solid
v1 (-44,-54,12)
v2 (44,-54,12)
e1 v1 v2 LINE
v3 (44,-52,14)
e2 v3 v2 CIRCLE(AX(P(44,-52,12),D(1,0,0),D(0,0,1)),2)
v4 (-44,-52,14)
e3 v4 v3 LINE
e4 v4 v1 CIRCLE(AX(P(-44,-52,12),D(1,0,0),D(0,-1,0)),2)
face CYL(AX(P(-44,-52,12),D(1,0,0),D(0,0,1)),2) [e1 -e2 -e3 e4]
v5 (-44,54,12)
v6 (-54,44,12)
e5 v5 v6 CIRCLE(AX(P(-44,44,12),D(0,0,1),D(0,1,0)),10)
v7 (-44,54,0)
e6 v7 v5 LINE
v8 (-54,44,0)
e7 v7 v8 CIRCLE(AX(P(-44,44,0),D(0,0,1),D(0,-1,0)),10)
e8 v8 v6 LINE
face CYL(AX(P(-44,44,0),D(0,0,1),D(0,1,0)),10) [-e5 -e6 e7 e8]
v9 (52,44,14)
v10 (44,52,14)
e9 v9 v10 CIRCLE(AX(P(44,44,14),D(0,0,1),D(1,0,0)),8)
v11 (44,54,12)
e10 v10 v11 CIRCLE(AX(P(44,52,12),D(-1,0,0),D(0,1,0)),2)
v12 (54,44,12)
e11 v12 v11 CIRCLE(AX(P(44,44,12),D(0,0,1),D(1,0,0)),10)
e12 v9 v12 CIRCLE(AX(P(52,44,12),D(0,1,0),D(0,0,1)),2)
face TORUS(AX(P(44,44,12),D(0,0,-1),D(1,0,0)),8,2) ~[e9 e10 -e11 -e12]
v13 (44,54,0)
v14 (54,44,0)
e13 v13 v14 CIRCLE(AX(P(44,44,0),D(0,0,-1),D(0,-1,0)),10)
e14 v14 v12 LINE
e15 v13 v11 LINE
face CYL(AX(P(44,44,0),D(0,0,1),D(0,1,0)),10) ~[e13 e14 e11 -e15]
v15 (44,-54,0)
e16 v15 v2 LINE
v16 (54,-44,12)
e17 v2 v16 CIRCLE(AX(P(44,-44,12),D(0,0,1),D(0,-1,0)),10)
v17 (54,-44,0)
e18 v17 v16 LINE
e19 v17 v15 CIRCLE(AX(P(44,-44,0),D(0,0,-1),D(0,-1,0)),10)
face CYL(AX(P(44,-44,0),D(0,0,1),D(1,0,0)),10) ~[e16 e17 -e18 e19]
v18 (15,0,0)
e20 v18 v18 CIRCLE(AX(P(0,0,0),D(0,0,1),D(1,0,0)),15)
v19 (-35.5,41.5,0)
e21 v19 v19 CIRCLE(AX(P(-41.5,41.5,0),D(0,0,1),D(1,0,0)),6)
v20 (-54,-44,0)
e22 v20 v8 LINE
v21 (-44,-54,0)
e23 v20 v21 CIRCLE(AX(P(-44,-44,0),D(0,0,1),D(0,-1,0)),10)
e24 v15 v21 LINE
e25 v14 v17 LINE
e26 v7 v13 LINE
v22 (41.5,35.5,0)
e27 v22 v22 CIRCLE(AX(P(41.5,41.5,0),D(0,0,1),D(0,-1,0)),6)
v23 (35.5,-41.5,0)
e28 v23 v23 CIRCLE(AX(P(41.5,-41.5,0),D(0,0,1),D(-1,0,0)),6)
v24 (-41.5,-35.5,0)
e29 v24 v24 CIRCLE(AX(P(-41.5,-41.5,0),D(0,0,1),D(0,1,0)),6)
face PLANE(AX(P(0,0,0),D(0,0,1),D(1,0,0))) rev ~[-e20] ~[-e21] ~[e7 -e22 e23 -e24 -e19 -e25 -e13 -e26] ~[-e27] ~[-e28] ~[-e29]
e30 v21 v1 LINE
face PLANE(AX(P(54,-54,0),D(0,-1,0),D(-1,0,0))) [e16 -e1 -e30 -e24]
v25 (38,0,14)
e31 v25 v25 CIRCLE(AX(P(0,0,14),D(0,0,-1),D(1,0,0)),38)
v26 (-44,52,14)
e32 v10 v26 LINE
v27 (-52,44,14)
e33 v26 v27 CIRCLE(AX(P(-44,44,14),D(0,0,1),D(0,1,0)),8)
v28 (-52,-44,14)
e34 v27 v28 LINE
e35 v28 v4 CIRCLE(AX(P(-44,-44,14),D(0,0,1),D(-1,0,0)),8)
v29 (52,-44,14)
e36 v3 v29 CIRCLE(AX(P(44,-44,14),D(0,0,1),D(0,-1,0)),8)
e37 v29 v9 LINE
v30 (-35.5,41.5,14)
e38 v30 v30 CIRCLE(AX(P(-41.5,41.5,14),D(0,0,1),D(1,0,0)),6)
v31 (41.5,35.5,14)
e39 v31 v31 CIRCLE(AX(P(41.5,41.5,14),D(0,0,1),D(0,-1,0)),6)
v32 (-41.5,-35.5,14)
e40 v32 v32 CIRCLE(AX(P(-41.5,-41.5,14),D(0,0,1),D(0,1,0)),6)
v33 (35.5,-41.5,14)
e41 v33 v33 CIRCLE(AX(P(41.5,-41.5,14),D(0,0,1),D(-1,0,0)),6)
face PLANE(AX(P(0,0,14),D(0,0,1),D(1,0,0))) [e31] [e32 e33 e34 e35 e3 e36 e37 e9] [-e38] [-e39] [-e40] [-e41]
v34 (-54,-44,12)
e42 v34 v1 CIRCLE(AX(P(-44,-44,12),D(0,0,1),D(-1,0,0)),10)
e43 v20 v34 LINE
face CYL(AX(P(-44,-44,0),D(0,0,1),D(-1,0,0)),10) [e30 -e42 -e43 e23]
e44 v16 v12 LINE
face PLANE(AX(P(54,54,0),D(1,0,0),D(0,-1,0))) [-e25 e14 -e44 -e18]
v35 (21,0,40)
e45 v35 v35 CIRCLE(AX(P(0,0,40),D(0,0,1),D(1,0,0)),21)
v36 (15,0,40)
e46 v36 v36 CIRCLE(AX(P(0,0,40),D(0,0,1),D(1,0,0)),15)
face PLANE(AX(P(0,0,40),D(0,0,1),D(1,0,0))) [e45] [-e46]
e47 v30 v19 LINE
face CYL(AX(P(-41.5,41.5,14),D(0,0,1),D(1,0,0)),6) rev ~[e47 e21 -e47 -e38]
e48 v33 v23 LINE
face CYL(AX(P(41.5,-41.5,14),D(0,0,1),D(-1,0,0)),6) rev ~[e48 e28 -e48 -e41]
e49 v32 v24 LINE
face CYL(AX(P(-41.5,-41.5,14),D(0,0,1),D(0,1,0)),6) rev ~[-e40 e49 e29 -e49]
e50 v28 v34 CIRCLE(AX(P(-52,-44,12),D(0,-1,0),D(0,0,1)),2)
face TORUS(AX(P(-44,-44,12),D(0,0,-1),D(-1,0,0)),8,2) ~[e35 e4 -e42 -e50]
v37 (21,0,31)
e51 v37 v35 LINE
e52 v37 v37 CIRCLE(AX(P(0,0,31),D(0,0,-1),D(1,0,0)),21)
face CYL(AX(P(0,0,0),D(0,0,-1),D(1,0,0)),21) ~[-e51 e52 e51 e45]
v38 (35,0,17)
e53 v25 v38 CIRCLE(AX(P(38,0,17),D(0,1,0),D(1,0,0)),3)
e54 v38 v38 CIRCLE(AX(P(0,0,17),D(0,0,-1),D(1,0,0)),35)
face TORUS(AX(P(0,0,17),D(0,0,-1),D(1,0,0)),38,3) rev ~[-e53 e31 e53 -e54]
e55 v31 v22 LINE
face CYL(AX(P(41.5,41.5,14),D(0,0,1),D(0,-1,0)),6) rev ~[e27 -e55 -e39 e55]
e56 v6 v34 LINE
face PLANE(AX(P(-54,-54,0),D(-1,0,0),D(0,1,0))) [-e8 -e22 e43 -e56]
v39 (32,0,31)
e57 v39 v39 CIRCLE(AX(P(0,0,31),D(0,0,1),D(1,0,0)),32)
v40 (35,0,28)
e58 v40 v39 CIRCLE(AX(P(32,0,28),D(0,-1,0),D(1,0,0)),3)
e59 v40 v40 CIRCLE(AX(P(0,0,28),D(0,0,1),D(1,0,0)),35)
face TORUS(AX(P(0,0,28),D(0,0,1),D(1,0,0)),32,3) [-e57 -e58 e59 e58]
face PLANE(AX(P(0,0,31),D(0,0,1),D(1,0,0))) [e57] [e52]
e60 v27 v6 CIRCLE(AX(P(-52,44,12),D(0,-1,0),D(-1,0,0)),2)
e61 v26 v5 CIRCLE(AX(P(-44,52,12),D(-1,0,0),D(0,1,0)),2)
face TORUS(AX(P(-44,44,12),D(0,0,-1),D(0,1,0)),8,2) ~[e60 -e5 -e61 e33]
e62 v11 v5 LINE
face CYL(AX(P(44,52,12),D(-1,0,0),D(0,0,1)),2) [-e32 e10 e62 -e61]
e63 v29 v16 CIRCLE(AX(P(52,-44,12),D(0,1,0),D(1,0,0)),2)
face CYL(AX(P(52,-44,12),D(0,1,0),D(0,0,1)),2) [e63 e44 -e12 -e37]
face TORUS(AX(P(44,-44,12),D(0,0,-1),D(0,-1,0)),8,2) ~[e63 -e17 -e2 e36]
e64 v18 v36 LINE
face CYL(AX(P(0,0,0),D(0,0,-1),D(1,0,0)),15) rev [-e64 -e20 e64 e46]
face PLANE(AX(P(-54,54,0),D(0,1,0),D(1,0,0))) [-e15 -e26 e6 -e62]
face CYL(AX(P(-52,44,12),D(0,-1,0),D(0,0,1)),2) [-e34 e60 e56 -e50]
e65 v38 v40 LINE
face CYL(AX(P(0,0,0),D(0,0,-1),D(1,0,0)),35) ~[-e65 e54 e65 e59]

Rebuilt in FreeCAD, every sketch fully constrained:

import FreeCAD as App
import Part
import Sketcher

V = App.Vector


def edges_at(feature, points):
    """Names of the edges that pass closest to the given points."""
    edges = feature.Shape.Edges
    near = lambda p: min(range(len(edges)), key=lambda i: edges[i].distToShape(Part.Vertex(*p))[0])
    return sorted({f"Edge{near(p) + 1}" for p in points})


def add_polygon(sketch, points):
    """Adds a closed chain of lines whose ends are joined by coincident constraints."""
    first, n = sketch.GeometryCount, len(points)
    for a, b in zip(points, points[1:] + points[:1]):
        sketch.addGeometry(Part.LineSegment(App.Vector(*a, 0), App.Vector(*b, 0)), False)
    for i in range(n):
        sketch.addConstraint(Sketcher.Constraint("Coincident", first + i, 2, first + (i + 1) % n, 1))

doc = App.newDocument("Part")
params = doc.addObject("Spreadsheet::Sheet", "Params")
for row, (alias, value) in enumerate([
    ("sketch1_width", "108 mm"),
    ("pad1_length", "14 mm"),
    ("sketch2_diameter", "12 mm"),
    ("fillet_radius", "10 mm"),
    ("sketch3_diameter", "70 mm"),
    ("pad2_length", "31 mm"),
    ("sketch4_diameter", "30 mm"),
    ("pocket2_length", "31 mm"),
    ("sketch5_diameter", "42 mm"),
    ("sketch5_diameter2", "30 mm"),
    ("pad3_length", "40 mm"),
    ("fillet2_radius", "3 mm"),
    ("fillet3_radius", "2 mm"),
], start=1):
    params.set(f"A{row}", alias)
    params.set(f"B{row}", "=" + value)
    params.setAlias(f"B{row}", alias)

body = doc.addObject("PartDesign::Body", "Body")

# Sketch on XY plane
sketch1 = body.newObject("Sketcher::SketchObject", "Sketch")
sketch1.AttachmentSupport = (doc.getObject("XY_Plane"), [""])
sketch1.MapMode = "FlatFace"
add_polygon(sketch1, [(54, 54), (-54, 54), (-54, -54), (54, -54)])  # lines 0-3
sketch1.addConstraint([
    Sketcher.Constraint("Horizontal", 0),
    Sketcher.Constraint("Vertical", 1),
    Sketcher.Constraint("Horizontal", 2),
    Sketcher.Constraint("Vertical", 3),
    Sketcher.Constraint("Symmetric", 0, 2, 2, 2, -1, 1),
    Sketcher.Constraint("Equal", 2, 1),
    Sketcher.Constraint("DistanceX", 0, 2, 0, 1, 108.0),
])
sketch1.setExpression("Constraints[10]", "Params.sketch1_width")
pad1 = body.newObject("PartDesign::Pad", "Pad")
pad1.Profile = sketch1
pad1.setExpression("Length", "Params.pad1_length")

# Sketch on XY plane
sketch2 = body.newObject("Sketcher::SketchObject", "Sketch001")
sketch2.AttachmentSupport = (doc.getObject("XY_Plane"), [""])
sketch2.MapMode = "FlatFace"
sketch2.AttachmentOffset = App.Placement(V(0, 0, 14), App.Rotation())
sketch2.addGeometry(Part.Circle(V(-42, 42, 0), V(0, 0, 1), 6), False)
sketch2.addConstraint([
    Sketcher.Constraint("Diameter", 0, 12.0),
    Sketcher.Constraint("DistanceX", 0, 3, -1, 1, 41.5),
    Sketcher.Constraint("DistanceY", -1, 1, 0, 3, 41.5),
])
sketch2.setExpression("Constraints[0]", "Params.sketch2_diameter")
pocket1 = body.newObject("PartDesign::Pocket", "Pocket")
pocket1.Profile = sketch2
pocket1.Type = "ThroughAll"
doc.recompute()

polarpattern = body.newObject("PartDesign::PolarPattern", "PolarPattern")
polarpattern.Originals = [pocket1]
polarpattern.Axis = (doc.getObject("Z_Axis"), [""])
polarpattern.Angle = 360
polarpattern.Occurrences = 4
body.Tip = polarpattern
doc.recompute()

fillet = body.newObject("PartDesign::Fillet", "Fillet")
fillet.Base = (polarpattern, edges_at(polarpattern, [
    (-54, 54, 7),
    (54, 54, 7),
    (-54, -54, 7),
    (54, -54, 7),
]))
fillet.setExpression("Radius", "Params.fillet_radius")

# Sketch on XY plane
sketch3 = body.newObject("Sketcher::SketchObject", "Sketch002")
sketch3.AttachmentSupport = (doc.getObject("XY_Plane"), [""])
sketch3.MapMode = "FlatFace"
sketch3.addGeometry(Part.Circle(V(0, 0, 0), V(0, 0, 1), 35), False)
sketch3.addConstraint([
    Sketcher.Constraint("Coincident", 0, 3, -1, 1),
    Sketcher.Constraint("Diameter", 0, 70.0),
])
sketch3.setExpression("Constraints[1]", "Params.sketch3_diameter")
pad2 = body.newObject("PartDesign::Pad", "Pad001")
pad2.Profile = sketch3
pad2.setExpression("Length", "Params.pad2_length")

# Sketch on XY plane
sketch4 = body.newObject("Sketcher::SketchObject", "Sketch003")
sketch4.AttachmentSupport = (doc.getObject("XY_Plane"), [""])
sketch4.MapMode = "FlatFace"
sketch4.addGeometry(Part.Circle(V(0, 0, 0), V(0, 0, 1), 15), False)
sketch4.addConstraint([
    Sketcher.Constraint("Coincident", 0, 3, -1, 1),
    Sketcher.Constraint("Diameter", 0, 30.0),
])
sketch4.setExpression("Constraints[1]", "Params.sketch4_diameter")
pocket2 = body.newObject("PartDesign::Pocket", "Pocket001")
pocket2.Profile = sketch4
pocket2.setExpression("Length", "Params.pocket2_length")
pocket2.Reversed = True

# Sketch on XY plane
sketch5 = body.newObject("Sketcher::SketchObject", "Sketch004")
sketch5.AttachmentSupport = (doc.getObject("XY_Plane"), [""])
sketch5.MapMode = "FlatFace"
sketch5.addGeometry([
    Part.Circle(V(0, 0, 0), V(0, 0, 1), 21),
    Part.Circle(V(0, 0, 0), V(0, 0, 1), 15),
], False)
sketch5.addConstraint([
    Sketcher.Constraint("Coincident", 0, 3, -1, 1),
    Sketcher.Constraint("Coincident", 1, 3, -1, 1),
    Sketcher.Constraint("Diameter", 0, 42.0),
    Sketcher.Constraint("Diameter", 1, 30.0),
])
sketch5.setExpression("Constraints[2]", "Params.sketch5_diameter")
sketch5.setExpression("Constraints[3]", "Params.sketch5_diameter2")
pad3 = body.newObject("PartDesign::Pad", "Pad002")
pad3.Profile = sketch5
pad3.setExpression("Length", "Params.pad3_length")
doc.recompute()

fillet2 = body.newObject("PartDesign::Fillet", "Fillet001")
fillet2.Base = (pad3, edges_at(pad3, [(-35, 0, 31), (-35, 0, 14)]))
fillet2.setExpression("Radius", "Params.fillet2_radius")
doc.recompute()

fillet3 = body.newObject("PartDesign::Fillet", "Fillet002")
fillet3.Base = (fillet2, edges_at(fillet2, [
    (-51.071, 51.071, 14),
    (-54, 0, 14),
    (-51.071, -51.071, 14),
    (0, -54, 14),
    (51.071, -51.071, 14),
    (54, 0, 14),
    (51.071, 51.071, 14),
    (0, 54, 14),
]))
fillet3.setExpression("Radius", "Params.fillet3_radius")

doc.recompute()
